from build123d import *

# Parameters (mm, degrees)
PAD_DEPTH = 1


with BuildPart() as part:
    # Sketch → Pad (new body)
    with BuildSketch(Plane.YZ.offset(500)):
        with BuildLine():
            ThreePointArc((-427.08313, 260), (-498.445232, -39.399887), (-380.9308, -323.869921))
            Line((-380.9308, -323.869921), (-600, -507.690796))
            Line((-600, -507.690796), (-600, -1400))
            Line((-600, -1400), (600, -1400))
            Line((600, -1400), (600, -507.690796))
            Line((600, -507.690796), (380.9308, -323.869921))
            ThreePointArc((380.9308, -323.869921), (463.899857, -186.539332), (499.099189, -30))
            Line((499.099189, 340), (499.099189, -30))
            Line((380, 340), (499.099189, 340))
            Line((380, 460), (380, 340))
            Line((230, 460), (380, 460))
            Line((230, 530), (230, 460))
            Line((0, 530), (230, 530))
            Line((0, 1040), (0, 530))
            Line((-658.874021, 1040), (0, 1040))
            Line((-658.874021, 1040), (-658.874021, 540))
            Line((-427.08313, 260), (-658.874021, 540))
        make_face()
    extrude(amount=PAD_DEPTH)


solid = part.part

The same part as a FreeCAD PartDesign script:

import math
import FreeCAD as App
import Part
import Sketcher

V = App.Vector
Q = App.Units.Quantity

doc = App.newDocument("Part")
body = doc.addObject("PartDesign::Body", "Body")

sketch1 = body.newObject("Sketcher::SketchObject", "Sketch")
sketch1.AttachmentSupport = (doc.getObject("YZ_Plane"), [""])
sketch1.MapMode = "FlatFace"
sketch1.AttachmentOffset = App.Placement(V(0, 0, 500), App.Rotation())
sketch1.addGeometry([
    Part.ArcOfCircle(Part.Circle(V(-0.000002, 0, 0), V(0, 0, 1), 499.999998), math.radians(148.667748), math.radians(220.371412)),
    Part.LineSegment(V(-380.9308, -323.869921, 0), V(-600, -507.690796, 0)),
    Part.LineSegment(V(-600, -507.690796, 0), V(-600, -1400, 0)),
    Part.LineSegment(V(-600, -1400, 0), V(600, -1400, 0)),
    Part.LineSegment(V(600, -1400, 0), V(600, -507.690796, 0)),
    Part.LineSegment(V(600, -507.690796, 0), V(380.9308, -323.869921, 0)),
    Part.ArcOfCircle(Part.Circle(V(-0.00001, 0.000005, 0), V(0, 0, 1), 500.000011), math.radians(-40.371411), math.radians(-3.439813)),
    Part.LineSegment(V(499.099189, -30, 0), V(499.099189, 340, 0)),
    Part.LineSegment(V(499.099189, 340, 0), V(380, 340, 0)),
    Part.LineSegment(V(380, 340, 0), V(380, 460, 0)),
    Part.LineSegment(V(380, 460, 0), V(230, 460, 0)),
    Part.LineSegment(V(230, 460, 0), V(230, 530, 0)),
    Part.LineSegment(V(230, 530, 0), V(0, 530, 0)),
    Part.LineSegment(V(0, 530, 0), V(0, 1040, 0)),
    Part.LineSegment(V(0, 1040, 0), V(-658.874021, 1040, 0)),
    Part.LineSegment(V(-658.874021, 1040, 0), V(-658.874021, 540, 0)),
    Part.LineSegment(V(-658.874021, 540, 0), V(-427.08313, 260, 0)),
], False)
sketch1.addConstraint([
    Sketcher.Constraint("Coincident", 0, 2, 1, 1),
    Sketcher.Constraint("Coincident", 1, 2, 2, 1),
    Sketcher.Constraint("Coincident", 2, 2, 3, 1),
    Sketcher.Constraint("Coincident", 3, 2, 4, 1),
    Sketcher.Constraint("Coincident", 4, 2, 5, 1),
    Sketcher.Constraint("Coincident", 5, 2, 6, 1),
    Sketcher.Constraint("Coincident", 6, 2, 7, 1),
    Sketcher.Constraint("Coincident", 7, 2, 8, 1),
    Sketcher.Constraint("Coincident", 8, 2, 9, 1),
    Sketcher.Constraint("Coincident", 9, 2, 10, 1),
    Sketcher.Constraint("Coincident", 10, 2, 11, 1),
    Sketcher.Constraint("Coincident", 11, 2, 12, 1),
    Sketcher.Constraint("Coincident", 12, 2, 13, 1),
    Sketcher.Constraint("Coincident", 13, 2, 14, 1),
    Sketcher.Constraint("Coincident", 14, 2, 15, 1),
    Sketcher.Constraint("Coincident", 15, 2, 16, 1),
    Sketcher.Constraint("Coincident", 16, 2, 0, 1),
    Sketcher.Constraint("Vertical", 2),
    Sketcher.Constraint("Horizontal", 3),
    Sketcher.Constraint("Vertical", 4),
    Sketcher.Constraint("Vertical", 7),
    Sketcher.Constraint("Horizontal", 8),
    Sketcher.Constraint("Vertical", 9),
    Sketcher.Constraint("Horizontal", 10),
    Sketcher.Constraint("Vertical", 11),
    Sketcher.Constraint("Horizontal", 12),
    Sketcher.Constraint("Vertical", 13),
    Sketcher.Constraint("Horizontal", 14),
    Sketcher.Constraint("Vertical", 15),
    Sketcher.Constraint("Coincident", 0, 3, -1, 1),
    Sketcher.Constraint("Coincident", 6, 3, 0, 3),
    Sketcher.Constraint("Symmetric", 1, 2, 4, 2, -2),
    Sketcher.Constraint("Symmetric", 0, 2, 5, 2, -2),
    Sketcher.Constraint("PointOnObject", 12, 2, -2),
    Sketcher.Constraint("Radius", 0, Q("499.999998 mm")),
    Sketcher.Constraint("DistanceX", 3, 1, 3, 2, Q("1200 mm")),
    Sketcher.Constraint("DistanceX", 10, 2, 10, 1, Q("150 mm")),
    Sketcher.Constraint("DistanceX", 12, 2, 12, 1, Q("230 mm")),
    Sketcher.Constraint("DistanceY", 7, 1, 7, 2, Q("370 mm")),
    Sketcher.Constraint("DistanceY", 9, 1, 9, 2, Q("120 mm")),
    Sketcher.Constraint("DistanceY", 11, 1, 11, 2, Q("70 mm")),
    Sketcher.Constraint("DistanceY", 13, 1, 13, 2, Q("510 mm")),
    Sketcher.Constraint("DistanceY", 15, 2, 15, 1, Q("500 mm")),
    Sketcher.Constraint("Angle", 1, Q("-140.000002 deg")),
    Sketcher.Constraint("DistanceY", 2, 2, -1, 1, Q("1400 mm")),
    Sketcher.Constraint("DistanceY", -1, 1, 7, 2, Q("340 mm")),
    Sketcher.Constraint("DistanceY", -1, 1, 16, 2, Q("260 mm")),
    Sketcher.Constraint("DistanceX", 14, 2, 14, 1, Q("658.874021 mm")),
    Sketcher.Constraint("DistanceX", -1, 1, 5, 2, Q("380.9308 mm")),
])
pad1 = body.newObject("PartDesign::Pad", "Pad")
pad1.Profile = sketch1
pad1.Length = 1

doc.recompute()
